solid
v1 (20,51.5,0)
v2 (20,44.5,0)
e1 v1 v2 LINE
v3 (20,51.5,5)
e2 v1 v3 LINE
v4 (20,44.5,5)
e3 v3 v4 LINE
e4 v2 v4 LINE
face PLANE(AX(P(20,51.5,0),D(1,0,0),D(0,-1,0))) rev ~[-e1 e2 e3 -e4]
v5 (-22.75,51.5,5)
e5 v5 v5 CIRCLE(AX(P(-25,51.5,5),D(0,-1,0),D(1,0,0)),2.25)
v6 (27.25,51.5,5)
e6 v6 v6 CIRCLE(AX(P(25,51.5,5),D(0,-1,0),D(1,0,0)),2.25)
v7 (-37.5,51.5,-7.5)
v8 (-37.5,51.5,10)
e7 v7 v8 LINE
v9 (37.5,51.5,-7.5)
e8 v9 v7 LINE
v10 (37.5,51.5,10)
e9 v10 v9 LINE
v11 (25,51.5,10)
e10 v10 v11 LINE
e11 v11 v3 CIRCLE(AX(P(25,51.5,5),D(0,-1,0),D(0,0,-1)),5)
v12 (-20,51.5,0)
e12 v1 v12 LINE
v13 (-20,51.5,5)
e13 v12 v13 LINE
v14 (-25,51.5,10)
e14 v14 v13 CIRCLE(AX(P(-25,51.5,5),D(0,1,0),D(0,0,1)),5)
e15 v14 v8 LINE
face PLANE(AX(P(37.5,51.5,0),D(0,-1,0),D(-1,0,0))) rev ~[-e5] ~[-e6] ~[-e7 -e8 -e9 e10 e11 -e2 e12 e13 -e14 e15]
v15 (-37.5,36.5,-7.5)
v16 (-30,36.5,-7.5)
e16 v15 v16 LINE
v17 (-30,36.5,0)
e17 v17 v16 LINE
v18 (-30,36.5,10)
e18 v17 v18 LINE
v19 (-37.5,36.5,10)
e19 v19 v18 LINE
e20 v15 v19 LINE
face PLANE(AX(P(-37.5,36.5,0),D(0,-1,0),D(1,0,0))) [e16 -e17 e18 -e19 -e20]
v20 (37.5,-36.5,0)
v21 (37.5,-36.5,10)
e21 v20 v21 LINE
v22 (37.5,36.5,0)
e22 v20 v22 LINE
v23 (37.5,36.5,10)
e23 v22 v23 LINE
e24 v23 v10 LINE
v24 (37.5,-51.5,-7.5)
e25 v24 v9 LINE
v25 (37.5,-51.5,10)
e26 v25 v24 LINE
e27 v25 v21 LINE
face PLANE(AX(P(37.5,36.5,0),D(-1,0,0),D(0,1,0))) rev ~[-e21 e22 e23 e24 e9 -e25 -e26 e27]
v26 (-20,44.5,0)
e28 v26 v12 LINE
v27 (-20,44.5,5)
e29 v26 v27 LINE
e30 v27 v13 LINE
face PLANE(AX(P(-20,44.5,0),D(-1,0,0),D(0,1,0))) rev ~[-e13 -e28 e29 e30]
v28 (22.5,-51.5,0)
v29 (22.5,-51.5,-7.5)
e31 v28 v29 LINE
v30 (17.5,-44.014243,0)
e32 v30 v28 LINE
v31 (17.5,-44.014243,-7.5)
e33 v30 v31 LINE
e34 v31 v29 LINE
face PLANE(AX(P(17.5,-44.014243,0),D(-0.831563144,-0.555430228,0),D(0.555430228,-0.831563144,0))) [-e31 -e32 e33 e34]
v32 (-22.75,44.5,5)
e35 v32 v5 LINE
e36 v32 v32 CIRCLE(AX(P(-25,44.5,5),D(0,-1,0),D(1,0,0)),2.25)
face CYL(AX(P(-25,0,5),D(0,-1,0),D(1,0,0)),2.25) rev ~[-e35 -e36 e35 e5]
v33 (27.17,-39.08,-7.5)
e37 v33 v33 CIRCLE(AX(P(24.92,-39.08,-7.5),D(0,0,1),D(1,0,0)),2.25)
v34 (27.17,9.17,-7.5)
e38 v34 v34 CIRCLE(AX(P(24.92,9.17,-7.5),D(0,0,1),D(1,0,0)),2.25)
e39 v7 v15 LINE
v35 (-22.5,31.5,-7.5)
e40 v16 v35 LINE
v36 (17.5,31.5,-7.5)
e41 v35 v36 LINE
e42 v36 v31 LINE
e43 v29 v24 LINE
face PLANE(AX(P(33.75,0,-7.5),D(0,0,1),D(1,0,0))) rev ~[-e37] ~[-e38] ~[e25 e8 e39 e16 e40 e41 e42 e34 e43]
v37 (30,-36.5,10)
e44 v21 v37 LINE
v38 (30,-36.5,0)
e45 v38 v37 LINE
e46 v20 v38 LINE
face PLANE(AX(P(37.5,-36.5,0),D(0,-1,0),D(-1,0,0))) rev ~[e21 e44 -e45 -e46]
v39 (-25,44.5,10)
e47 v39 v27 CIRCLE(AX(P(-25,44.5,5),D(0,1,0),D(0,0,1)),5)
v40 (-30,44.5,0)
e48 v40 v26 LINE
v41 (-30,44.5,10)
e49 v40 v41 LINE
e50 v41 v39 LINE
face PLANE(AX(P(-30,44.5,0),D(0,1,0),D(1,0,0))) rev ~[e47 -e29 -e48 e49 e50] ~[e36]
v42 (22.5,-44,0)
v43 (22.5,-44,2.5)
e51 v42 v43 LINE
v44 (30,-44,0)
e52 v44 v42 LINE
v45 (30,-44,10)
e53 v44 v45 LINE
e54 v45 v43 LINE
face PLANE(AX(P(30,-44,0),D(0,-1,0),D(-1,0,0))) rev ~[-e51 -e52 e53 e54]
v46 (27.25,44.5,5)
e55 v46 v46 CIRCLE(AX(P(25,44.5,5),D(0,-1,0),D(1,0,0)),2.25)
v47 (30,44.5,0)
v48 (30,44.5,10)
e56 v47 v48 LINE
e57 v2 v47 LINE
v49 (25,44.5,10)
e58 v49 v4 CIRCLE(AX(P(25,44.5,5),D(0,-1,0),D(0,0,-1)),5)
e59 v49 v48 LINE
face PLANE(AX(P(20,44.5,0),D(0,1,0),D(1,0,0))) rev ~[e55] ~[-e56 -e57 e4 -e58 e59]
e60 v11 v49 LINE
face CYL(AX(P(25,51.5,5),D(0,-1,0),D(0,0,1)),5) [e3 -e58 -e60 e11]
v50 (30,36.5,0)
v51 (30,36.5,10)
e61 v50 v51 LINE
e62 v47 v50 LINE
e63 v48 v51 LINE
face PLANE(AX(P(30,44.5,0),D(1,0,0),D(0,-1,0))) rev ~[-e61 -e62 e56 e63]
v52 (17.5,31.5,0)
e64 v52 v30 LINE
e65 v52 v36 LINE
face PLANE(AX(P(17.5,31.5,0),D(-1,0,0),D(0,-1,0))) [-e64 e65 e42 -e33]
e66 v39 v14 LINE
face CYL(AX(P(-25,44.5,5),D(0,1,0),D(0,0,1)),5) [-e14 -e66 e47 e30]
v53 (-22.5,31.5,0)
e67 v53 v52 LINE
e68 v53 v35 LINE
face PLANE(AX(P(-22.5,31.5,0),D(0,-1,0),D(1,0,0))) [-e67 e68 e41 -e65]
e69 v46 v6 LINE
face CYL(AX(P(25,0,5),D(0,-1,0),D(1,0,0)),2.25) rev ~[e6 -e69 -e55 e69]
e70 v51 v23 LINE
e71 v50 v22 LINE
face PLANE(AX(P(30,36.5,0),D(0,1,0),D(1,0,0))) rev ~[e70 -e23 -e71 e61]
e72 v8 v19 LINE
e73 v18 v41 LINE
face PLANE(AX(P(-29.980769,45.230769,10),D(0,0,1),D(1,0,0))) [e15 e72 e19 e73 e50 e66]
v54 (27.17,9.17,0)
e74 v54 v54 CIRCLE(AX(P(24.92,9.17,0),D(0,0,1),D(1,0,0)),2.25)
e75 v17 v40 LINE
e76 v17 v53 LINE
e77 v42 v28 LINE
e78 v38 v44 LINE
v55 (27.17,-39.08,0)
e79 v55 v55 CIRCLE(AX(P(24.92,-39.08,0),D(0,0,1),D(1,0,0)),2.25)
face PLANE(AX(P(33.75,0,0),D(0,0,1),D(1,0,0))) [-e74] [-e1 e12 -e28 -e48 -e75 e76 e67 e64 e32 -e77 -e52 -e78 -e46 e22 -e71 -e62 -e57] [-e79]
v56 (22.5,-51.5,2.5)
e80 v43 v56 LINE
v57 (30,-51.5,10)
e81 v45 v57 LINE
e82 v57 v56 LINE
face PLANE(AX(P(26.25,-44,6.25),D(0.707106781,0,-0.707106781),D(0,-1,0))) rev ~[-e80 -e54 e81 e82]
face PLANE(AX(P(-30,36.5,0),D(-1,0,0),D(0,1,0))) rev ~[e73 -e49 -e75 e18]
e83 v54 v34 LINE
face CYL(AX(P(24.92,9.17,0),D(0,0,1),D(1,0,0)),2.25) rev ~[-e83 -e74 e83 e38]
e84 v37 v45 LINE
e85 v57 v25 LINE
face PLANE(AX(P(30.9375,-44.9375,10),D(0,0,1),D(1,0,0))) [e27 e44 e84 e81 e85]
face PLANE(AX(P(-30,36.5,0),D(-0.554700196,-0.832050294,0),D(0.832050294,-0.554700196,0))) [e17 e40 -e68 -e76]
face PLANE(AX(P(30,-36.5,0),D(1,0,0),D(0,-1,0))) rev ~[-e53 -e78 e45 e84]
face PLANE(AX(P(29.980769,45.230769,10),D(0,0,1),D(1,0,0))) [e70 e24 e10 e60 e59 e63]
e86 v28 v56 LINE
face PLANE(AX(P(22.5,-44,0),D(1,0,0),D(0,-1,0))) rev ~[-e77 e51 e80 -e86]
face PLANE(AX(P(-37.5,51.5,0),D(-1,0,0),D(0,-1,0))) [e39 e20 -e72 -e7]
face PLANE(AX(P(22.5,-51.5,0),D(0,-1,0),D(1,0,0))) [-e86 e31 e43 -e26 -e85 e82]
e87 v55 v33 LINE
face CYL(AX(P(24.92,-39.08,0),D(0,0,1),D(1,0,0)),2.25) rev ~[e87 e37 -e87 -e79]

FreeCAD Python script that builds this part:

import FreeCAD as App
import Part
import Sketcher

V = App.Vector


def edges_at(feature, points):
    """Names of the edges that pass closest to the given points."""
    edges = feature.Shape.Edges
    near = lambda p: min(range(len(edges)), key=lambda i: edges[i].distToShape(Part.Vertex(*p))[0])
    return sorted({f"Edge{near(p) + 1}" for p in points})

doc = App.newDocument("Part")
body = doc.addObject("PartDesign::Body", "Body")

# Sketch on XY plane
sketch1 = body.newObject("Sketcher::SketchObject", "Sketch")
sketch1.AttachmentSupport = (doc.getObject("XY_Plane"), [""])
sketch1.MapMode = "FlatFace"
sketch1.addGeometry(Part.LineSegment(V(22.5, -51.5, 0), V(37.5, -51.5, 0)), False)
sketch1.addGeometry(Part.LineSegment(V(37.5, -51.5, 0), V(37.5, 51.5, 0)), False)
sketch1.addGeometry(Part.LineSegment(V(37.5, 51.5, 0), V(-37.5, 51.5, 0)), False)
sketch1.addGeometry(Part.LineSegment(V(-37.5, 51.5, 0), V(-37.5, 36.5, 0)), False)
sketch1.addGeometry(Part.LineSegment(V(-37.5, 36.5, 0), V(-30, 36.5, 0)), False)
sketch1.addGeometry(Part.LineSegment(V(-30, 36.5, 0), V(-22.5, 31.5, 0)), False)
sketch1.addGeometry(Part.LineSegment(V(-22.5, 31.5, 0), V(17.5, 31.5, 0)), False)
sketch1.addGeometry(Part.LineSegment(V(17.5, 31.5, 0), V(17.5, -44.014243, 0)), False)
sketch1.addGeometry(Part.LineSegment(V(17.5, -44.014243, 0), V(22.5, -51.5, 0)), False)
sketch1.addGeometry(Part.Circle(V(24.92, -39.08, 0), V(0, 0, 1), 2.25), False)
sketch1.addGeometry(Part.Circle(V(24.92, 9.17, 0), V(0, 0, 1), 2.25), False)
sketch1.addConstraint(Sketcher.Constraint("Coincident", 0, 2, 1, 1))
sketch1.addConstraint(Sketcher.Constraint("Coincident", 1, 2, 2, 1))
sketch1.addConstraint(Sketcher.Constraint("Coincident", 2, 2, 3, 1))
sketch1.addConstraint(Sketcher.Constraint("Coincident", 3, 2, 4, 1))
sketch1.addConstraint(Sketcher.Constraint("Coincident", 4, 2, 5, 1))
sketch1.addConstraint(Sketcher.Constraint("Coincident", 5, 2, 6, 1))
sketch1.addConstraint(Sketcher.Constraint("Coincident", 6, 2, 7, 1))
sketch1.addConstraint(Sketcher.Constraint("Coincident", 7, 2, 8, 1))
sketch1.addConstraint(Sketcher.Constraint("Coincident", 8, 2, 0, 1))
sketch1.addConstraint(Sketcher.Constraint("Horizontal", 0))
sketch1.addConstraint(Sketcher.Constraint("Vertical", 1))
sketch1.addConstraint(Sketcher.Constraint("Horizontal", 2))
sketch1.addConstraint(Sketcher.Constraint("Vertical", 3))
sketch1.addConstraint(Sketcher.Constraint("Horizontal", 4))
sketch1.addConstraint(Sketcher.Constraint("Horizontal", 6))
sketch1.addConstraint(Sketcher.Constraint("Vertical", 7))
sketch1.addConstraint(Sketcher.Constraint("Equal", 9, 10))
sketch1.addConstraint(Sketcher.Constraint("Symmetric", 0, 2, 2, 2, -1, 1))
sketch1.addConstraint(Sketcher.Constraint("Vertical", 9, 3, 10, 3))
sketch1.addConstraint(Sketcher.Constraint("Equal", 0, 3))
sketch1.addConstraint(Sketcher.Constraint("Diameter", 9, 4.5))
sketch1.addConstraint(Sketcher.Constraint("DistanceX", 0, 1, 0, 2, 15.0))
sketch1.addConstraint(Sketcher.Constraint("DistanceX", 2, 2, 2, 1, 75.0))
sketch1.addConstraint(Sketcher.Constraint("DistanceX", 6, 1, 6, 2, 40.0))
sketch1.addConstraint(Sketcher.Constraint("DistanceY", 1, 1, 1, 2, 103.0))
sketch1.addConstraint(Sketcher.Constraint("DistanceX", 4, 1, 4, 2, 7.5))
sketch1.addConstraint(Sketcher.Constraint("DistanceY", 5, 2, 4, 2, 5.0))
sketch1.addConstraint(Sketcher.Constraint("DistanceX", 3, 2, 5, 2, 15.0))
sketch1.addConstraint(Sketcher.Constraint("DistanceX", -1, 1, 9, 3, 24.92))
sketch1.addConstraint(Sketcher.Constraint("DistanceY", 9, 3, -1, 1, 39.08))
sketch1.addConstraint(Sketcher.Constraint("DistanceY", -1, 1, 10, 3, 9.17))
sketch1.addConstraint(Sketcher.Constraint("Distance", 8, 9.002031))
pad1 = body.newObject("PartDesign::Pad", "Pad")
pad1.Profile = sketch1
pad1.Length = 7.5
pad1.Reversed = True

# Sketch on XY plane
sketch2 = body.newObject("Sketcher::SketchObject", "Sketch001")
sketch2.AttachmentSupport = (doc.getObject("XY_Plane"), [""])
sketch2.MapMode = "FlatFace"
sketch2.addGeometry(Part.LineSegment(V(37.5, 51.5, 0), V(20, 51.5, 0)), False)
sketch2.addGeometry(Part.LineSegment(V(20, 51.5, 0), V(20, 44.5, 0)), False)
sketch2.addGeometry(Part.LineSegment(V(20, 44.5, 0), V(30, 44.5, 0)), False)
sketch2.addGeometry(Part.LineSegment(V(30, 44.5, 0), V(30, 36.5, 0)), False)
sketch2.addGeometry(Part.LineSegment(V(30, 36.5, 0), V(37.5, 36.5, 0)), False)
sketch2.addGeometry(Part.LineSegment(V(37.5, 36.5, 0), V(37.5, 51.5, 0)), False)
sketch2.addGeometry(Part.LineSegment(V(37.5, -51.5, 0), V(37.5, -36.5, 0)), False)
sketch2.addGeometry(Part.LineSegment(V(37.5, -36.5, 0), V(30, -36.5, 0)), False)
sketch2.addGeometry(Part.LineSegment(V(30, -36.5, 0), V(30, -44, 0)), False)
sketch2.addGeometry(Part.LineSegment(V(30, -44, 0), V(22.5, -44, 0)), False)
sketch2.addGeometry(Part.LineSegment(V(22.5, -44, 0), V(22.5, -51.5, 0)), False)
sketch2.addGeometry(Part.LineSegment(V(22.5, -51.5, 0), V(37.5, -51.5, 0)), False)
sketch2.addGeometry(Part.LineSegment(V(-20, 51.5, 0), V(-37.5, 51.5, 0)), False)
sketch2.addGeometry(Part.LineSegment(V(-37.5, 51.5, 0), V(-37.5, 36.5, 0)), False)
sketch2.addGeometry(Part.LineSegment(V(-37.5, 36.5, 0), V(-30, 36.5, 0)), False)
sketch2.addGeometry(Part.LineSegment(V(-30, 36.5, 0), V(-30, 44.5, 0)), False)
sketch2.addGeometry(Part.LineSegment(V(-30, 44.5, 0), V(-20, 44.5, 0)), False)
sketch2.addGeometry(Part.LineSegment(V(-20, 44.5, 0), V(-20, 51.5, 0)), False)
sketch2.addConstraint(Sketcher.Constraint("Coincident", 0, 2, 1, 1))
sketch2.addConstraint(Sketcher.Constraint("Coincident", 1, 2, 2, 1))
sketch2.addConstraint(Sketcher.Constraint("Coincident", 2, 2, 3, 1))
sketch2.addConstraint(Sketcher.Constraint("Coincident", 3, 2, 4, 1))
sketch2.addConstraint(Sketcher.Constraint("Coincident", 4, 2, 5, 1))
sketch2.addConstraint(Sketcher.Constraint("Coincident", 5, 2, 0, 1))
sketch2.addConstraint(Sketcher.Constraint("Coincident", 6, 2, 7, 1))
sketch2.addConstraint(Sketcher.Constraint("Coincident", 7, 2, 8, 1))
sketch2.addConstraint(Sketcher.Constraint("Coincident", 8, 2, 9, 1))
sketch2.addConstraint(Sketcher.Constraint("Coincident", 9, 2, 10, 1))
sketch2.addConstraint(Sketcher.Constraint("Coincident", 10, 2, 11, 1))
sketch2.addConstraint(Sketcher.Constraint("Coincident", 11, 2, 6, 1))
sketch2.addConstraint(Sketcher.Constraint("Coincident", 12, 2, 13, 1))
sketch2.addConstraint(Sketcher.Constraint("Coincident", 13, 2, 14, 1))
sketch2.addConstraint(Sketcher.Constraint("Coincident", 14, 2, 15, 1))
sketch2.addConstraint(Sketcher.Constraint("Coincident", 15, 2, 16, 1))
sketch2.addConstraint(Sketcher.Constraint("Coincident", 16, 2, 17, 1))
sketch2.addConstraint(Sketcher.Constraint("Coincident", 17, 2, 12, 1))
sketch2.addConstraint(Sketcher.Constraint("Horizontal", 0))
sketch2.addConstraint(Sketcher.Constraint("Vertical", 1))
sketch2.addConstraint(Sketcher.Constraint("Horizontal", 2))
sketch2.addConstraint(Sketcher.Constraint("Vertical", 3))
sketch2.addConstraint(Sketcher.Constraint("Horizontal", 4))
sketch2.addConstraint(Sketcher.Constraint("Vertical", 5))
sketch2.addConstraint(Sketcher.Constraint("Vertical", 6))
sketch2.addConstraint(Sketcher.Constraint("Horizontal", 7))
sketch2.addConstraint(Sketcher.Constraint("Vertical", 8))
sketch2.addConstraint(Sketcher.Constraint("Horizontal", 9))
sketch2.addConstraint(Sketcher.Constraint("Vertical", 10))
sketch2.addConstraint(Sketcher.Constraint("Horizontal", 11))
sketch2.addConstraint(Sketcher.Constraint("Horizontal", 12))
sketch2.addConstraint(Sketcher.Constraint("Vertical", 13))
sketch2.addConstraint(Sketcher.Constraint("Horizontal", 14))
sketch2.addConstraint(Sketcher.Constraint("Vertical", 15))
sketch2.addConstraint(Sketcher.Constraint("Horizontal", 16))
sketch2.addConstraint(Sketcher.Constraint("Vertical", 17))
sketch2.addConstraint(Sketcher.Constraint("Symmetric", 11, 2, 12, 2, -1, 1))
sketch2.addConstraint(Sketcher.Constraint("Symmetric", 7, 2, 14, 2, -1, 1))
sketch2.addConstraint(Sketcher.Constraint("Symmetric", 5, 2, 12, 2, -2))
sketch2.addConstraint(Sketcher.Constraint("Symmetric", 3, 2, 14, 2, -2))
sketch2.addConstraint(Sketcher.Constraint("Symmetric", 1, 2, 16, 2, -2))
sketch2.addConstraint(Sketcher.Constraint("Equal", 7, 9))
sketch2.addConstraint(Sketcher.Constraint("Equal", 11, 5))
sketch2.addConstraint(Sketcher.Constraint("Equal", 14, 8))
sketch2.addConstraint(Sketcher.Constraint("DistanceX", 2, 1, 2, 2, 10.0))
sketch2.addConstraint(Sketcher.Constraint("DistanceX", 11, 1, 11, 2, 15.0))
sketch2.addConstraint(Sketcher.Constraint("DistanceY", 1, 2, 1, 1, 7.0))
sketch2.addConstraint(Sketcher.Constraint("DistanceX", -1, 1, 0, 2, 20.0))
sketch2.addConstraint(Sketcher.Constraint("DistanceY", 8, 2, -1, 1, 44.0))
pad2 = body.newObject("PartDesign::Pad", "Pad001")
pad2.Profile = sketch2
pad2.Length = 10

# Sketch on XZ plane
sketch3 = body.newObject("Sketcher::SketchObject", "Sketch002")
sketch3.AttachmentSupport = (doc.getObject("XZ_Plane"), [""])
sketch3.MapMode = "FlatFace"
sketch3.addGeometry(Part.Circle(V(25, 5, 0), V(0, 0, 1), 2.25), False)
sketch3.addGeometry(Part.Circle(V(-25, 5, 0), V(0, 0, 1), 2.25), False)
sketch3.addConstraint(Sketcher.Constraint("Equal", 0, 1))
sketch3.addConstraint(Sketcher.Constraint("Symmetric", 0, 3, 1, 3, -2))
sketch3.addConstraint(Sketcher.Constraint("Diameter", 0, 4.5))
sketch3.addConstraint(Sketcher.Constraint("DistanceX", -1, 1, 0, 3, 25.0))
sketch3.addConstraint(Sketcher.Constraint("DistanceY", -1, 1, 0, 3, 5.0))
pocket1 = body.newObject("PartDesign::Pocket", "Pocket")
pocket1.Profile = sketch3
pocket1.Length = 75
doc.recompute()

chamfer = body.newObject("PartDesign::Chamfer", "Chamfer")
chamfer.Base = (pocket1, edges_at(pocket1, [(22.5, -47.75, 10)]))
chamfer.Size = 7.5
doc.recompute()

fillet = body.newObject("PartDesign::Fillet", "Fillet")
fillet.Base = (chamfer, edges_at(chamfer, [(-20, 48, 10), (20, 48, 10)]))
fillet.Radius = 5

doc.recompute()
